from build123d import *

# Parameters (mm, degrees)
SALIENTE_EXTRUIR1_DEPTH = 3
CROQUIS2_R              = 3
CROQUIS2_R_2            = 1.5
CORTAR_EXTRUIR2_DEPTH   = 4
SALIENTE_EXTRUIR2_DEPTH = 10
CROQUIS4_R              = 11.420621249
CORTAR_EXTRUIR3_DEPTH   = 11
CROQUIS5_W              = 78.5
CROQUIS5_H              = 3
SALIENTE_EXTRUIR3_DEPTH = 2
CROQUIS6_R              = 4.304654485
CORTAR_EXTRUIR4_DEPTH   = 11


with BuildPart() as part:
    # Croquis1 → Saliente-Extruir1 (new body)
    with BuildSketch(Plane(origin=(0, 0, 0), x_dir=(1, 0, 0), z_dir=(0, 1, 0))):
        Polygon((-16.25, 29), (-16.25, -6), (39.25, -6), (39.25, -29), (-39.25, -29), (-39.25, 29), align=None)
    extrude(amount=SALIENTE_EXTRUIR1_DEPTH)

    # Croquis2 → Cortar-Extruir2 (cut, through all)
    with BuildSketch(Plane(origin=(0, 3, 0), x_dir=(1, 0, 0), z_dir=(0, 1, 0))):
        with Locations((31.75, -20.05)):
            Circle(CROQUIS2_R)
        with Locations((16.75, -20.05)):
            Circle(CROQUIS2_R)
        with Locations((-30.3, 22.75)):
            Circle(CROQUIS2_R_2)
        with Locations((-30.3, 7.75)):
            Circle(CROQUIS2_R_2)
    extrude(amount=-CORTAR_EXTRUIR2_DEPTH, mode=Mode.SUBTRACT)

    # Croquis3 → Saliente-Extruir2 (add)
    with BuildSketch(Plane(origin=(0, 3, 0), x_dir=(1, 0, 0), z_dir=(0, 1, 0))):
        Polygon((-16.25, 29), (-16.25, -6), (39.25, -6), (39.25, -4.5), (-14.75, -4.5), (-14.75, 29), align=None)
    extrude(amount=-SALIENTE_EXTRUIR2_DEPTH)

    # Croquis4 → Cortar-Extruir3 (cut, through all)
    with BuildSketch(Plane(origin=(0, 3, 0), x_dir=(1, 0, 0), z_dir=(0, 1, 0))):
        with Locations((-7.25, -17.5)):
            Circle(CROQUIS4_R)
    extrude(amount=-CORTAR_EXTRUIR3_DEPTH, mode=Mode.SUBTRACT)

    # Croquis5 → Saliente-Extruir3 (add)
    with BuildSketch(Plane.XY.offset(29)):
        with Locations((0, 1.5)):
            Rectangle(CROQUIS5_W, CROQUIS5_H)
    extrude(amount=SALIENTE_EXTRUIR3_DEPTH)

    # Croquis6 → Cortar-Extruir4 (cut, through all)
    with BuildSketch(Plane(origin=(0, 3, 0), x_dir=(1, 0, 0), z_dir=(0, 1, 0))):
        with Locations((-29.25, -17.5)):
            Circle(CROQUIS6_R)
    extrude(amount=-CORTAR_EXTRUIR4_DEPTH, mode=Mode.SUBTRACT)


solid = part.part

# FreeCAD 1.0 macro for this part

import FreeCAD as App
import Part
import Sketcher


def add_polygon(sketch, points):
    """Adds a closed chain of lines whose ends are joined by coincident constraints."""
    first, n = sketch.GeometryCount, len(points)
    for a, b in zip(points, points[1:] + points[:1]):
        sketch.addGeometry(Part.LineSegment(App.Vector(*a, 0), App.Vector(*b, 0)), False)
    for i in range(n):
        sketch.addConstraint(Sketcher.Constraint("Coincident", first + i, 2, first + (i + 1) % n, 1))

doc = App.newDocument("Part")
body = doc.addObject("PartDesign::Body", "Body")

# Sketch on XZ plane
sketch1 = body.newObject("Sketcher::SketchObject", "Sketch")
sketch1.AttachmentSupport = (doc.getObject("XZ_Plane"), [""])
sketch1.MapMode = "FlatFace"
add_polygon(sketch1, [(-16, 6), (-16, -29), (-39, -29), (-39, 29), (39, 29), (39, 6)])  # lines 0-5
sketch1.addConstraint([
    Sketcher.Constraint("Vertical", 0),
    Sketcher.Constraint("Horizontal", 1),
    Sketcher.Constraint("Vertical", 2),
    Sketcher.Constraint("Horizontal", 3),
    Sketcher.Constraint("Vertical", 4),
    Sketcher.Constraint("Horizontal", 5),
    Sketcher.Constraint("Symmetric", 1, 2, 3, 2, -1, 1),
    Sketcher.Constraint("Equal", 1, 4),
    Sketcher.Constraint("DistanceX", 1, 2, 1, 1, 23.0),
    Sketcher.Constraint("DistanceY", 0, 2, 0, 1, 35.0),
    Sketcher.Constraint("DistanceX", 3, 1, 3, 2, 78.5),
])
pad1 = body.newObject("PartDesign::Pad", "Pad")
pad1.Profile = sketch1
pad1.Length = 3
pad1.Reversed = True

# Sketch on XZ plane
sketch2 = body.newObject("Sketcher::SketchObject", "Sketch001")
sketch2.AttachmentSupport = (doc.getObject("XZ_Plane"), [""])
sketch2.MapMode = "FlatFace"
sketch2.AttachmentOffset = App.Placement(App.Vector(0, 0, -3), App.Rotation())
sketch2.addGeometry([
    Part.Circle(App.Vector(31.8, 20.1, 0), App.Vector(0, 0, 1), 3),
    Part.Circle(App.Vector(16.8, 20.1, 0), App.Vector(0, 0, 1), 3),
    Part.Circle(App.Vector(-30.3, -22.8, 0), App.Vector(0, 0, 1), 1.5),
    Part.Circle(App.Vector(-30.3, -7.8, 0), App.Vector(0, 0, 1), 1.5),
], False)
sketch2.addConstraint([
    Sketcher.Constraint("Equal", 0, 1),
    Sketcher.Constraint("Equal", 2, 3),
    Sketcher.Constraint("Horizontal", 0, 3, 1, 3),
    Sketcher.Constraint("Vertical", 2, 3, 3, 3),
    Sketcher.Constraint("Diameter", 0, 6.0),
    Sketcher.Constraint("Diameter", 2, 3.0),
    Sketcher.Constraint("DistanceX", 1, 3, 0, 3, 15.0),
    Sketcher.Constraint("DistanceY", 2, 3, 3, 3, 15.0),
    Sketcher.Constraint("DistanceX", 2, 3, -1, 1, 30.3),
    Sketcher.Constraint("DistanceY", 2, 3, 1, 3, 42.8),
    Sketcher.Constraint("DistanceX", -1, 1, 0, 3, 31.75),
    Sketcher.Constraint("DistanceY", -1, 1, 0, 3, 20.05),
])
pocket1 = body.newObject("PartDesign::Pocket", "Pocket")
pocket1.Profile = sketch2
pocket1.Type = "ThroughAll"
pocket1.Reversed = True

# Sketch on XZ plane
sketch3 = body.newObject("Sketcher::SketchObject", "Sketch002")
sketch3.AttachmentSupport = (doc.getObject("XZ_Plane"), [""])
sketch3.MapMode = "FlatFace"
sketch3.AttachmentOffset = App.Placement(App.Vector(0, 0, -3), App.Rotation())
add_polygon(sketch3, [(-16.2, -29), (-16.2, 6), (39.2, 6), (39.2, 4.5), (-14.8, 4.5), (-14.8, -29)])  # lines 0-5
sketch3.addConstraint([
    Sketcher.Constraint("Vertical", 0),
    Sketcher.Constraint("Horizontal", 1),
    Sketcher.Constraint("Vertical", 2),
    Sketcher.Constraint("Horizontal", 3),
    Sketcher.Constraint("Vertical", 4),
    Sketcher.Constraint("Horizontal", 5),
    Sketcher.Constraint("Equal", 5, 2),
    Sketcher.Constraint("DistanceX", 3, 2, 3, 1, 54.0),
    Sketcher.Constraint("DistanceY", 0, 1, 0, 2, 35.0),
    Sketcher.Constraint("DistanceX", 1, 1, 1, 2, 55.5),
    Sketcher.Constraint("DistanceY", -1, 1, 0, 2, 6.0),
    Sketcher.Constraint("DistanceX", 0, 2, -1, 1, 16.25),
])
pad2 = body.newObject("PartDesign::Pad", "Pad001")
pad2.Profile = sketch3
pad2.Length = 10

# Sketch on XZ plane
sketch4 = body.newObject("Sketcher::SketchObject", "Sketch003")
sketch4.AttachmentSupport = (doc.getObject("XZ_Plane"), [""])
sketch4.MapMode = "FlatFace"
sketch4.AttachmentOffset = App.Placement(App.Vector(0, 0, -3), App.Rotation())
sketch4.addGeometry(Part.Circle(App.Vector(-7, 18, 0), App.Vector(0, 0, 1), 11), False)
sketch4.addConstraint([
    Sketcher.Constraint("DistanceY", -1, 1, 0, 3, 17.5),
    Sketcher.Constraint("DistanceX", 0, 3, -1, 1, 7.25),
    Sketcher.Constraint("Diameter", 0, 22.841242),
])
pocket2 = body.newObject("PartDesign::Pocket", "Pocket001")
pocket2.Profile = sketch4
pocket2.Type = "ThroughAll"
pocket2.Reversed = True

# Sketch on XY plane
sketch5 = body.newObject("Sketcher::SketchObject", "Sketch004")
sketch5.AttachmentSupport = (doc.getObject("XY_Plane"), [""])
sketch5.MapMode = "FlatFace"
sketch5.AttachmentOffset = App.Placement(App.Vector(0, 0, 29), App.Rotation())
add_polygon(sketch5, [(-39.2, 3), (-39.2, 0), (39.2, 0), (39.2, 3)])  # lines 0-3
sketch5.addConstraint([
    Sketcher.Constraint("Vertical", 0),
    Sketcher.Constraint("Horizontal", 1),
    Sketcher.Constraint("Vertical", 2),
    Sketcher.Constraint("Horizontal", 3),
    Sketcher.Constraint("Symmetric", 0, 2, 1, 2, -1, 1),
    Sketcher.Constraint("DistanceY", 0, 2, 0, 1, 3.0),
    Sketcher.Constraint("DistanceX", 1, 1, 1, 2, 78.5),
])
pad3 = body.newObject("PartDesign::Pad", "Pad002")
pad3.Profile = sketch5
pad3.Length = 2

# Sketch on XZ plane
sketch6 = body.newObject("Sketcher::SketchObject", "Sketch005")
sketch6.AttachmentSupport = (doc.getObject("XZ_Plane"), [""])
sketch6.MapMode = "FlatFace"
sketch6.AttachmentOffset = App.Placement(App.Vector(0, 0, -3), App.Rotation())
sketch6.addGeometry(Part.Circle(App.Vector(-29.2, 17.5, 0), App.Vector(0, 0, 1), 4.3), False)
sketch6.addConstraint([
    Sketcher.Constraint("DistanceY", -1, 1, 0, 3, 17.5),
    Sketcher.Constraint("Diameter", 0, 8.609309),
    Sketcher.Constraint("DistanceX", 0, 3, -1, 1, 29.25),
])
pocket3 = body.newObject("PartDesign::Pocket", "Pocket002")
pocket3.Profile = sketch6
pocket3.Type = "ThroughAll"
pocket3.Reversed = True

doc.recompute()
